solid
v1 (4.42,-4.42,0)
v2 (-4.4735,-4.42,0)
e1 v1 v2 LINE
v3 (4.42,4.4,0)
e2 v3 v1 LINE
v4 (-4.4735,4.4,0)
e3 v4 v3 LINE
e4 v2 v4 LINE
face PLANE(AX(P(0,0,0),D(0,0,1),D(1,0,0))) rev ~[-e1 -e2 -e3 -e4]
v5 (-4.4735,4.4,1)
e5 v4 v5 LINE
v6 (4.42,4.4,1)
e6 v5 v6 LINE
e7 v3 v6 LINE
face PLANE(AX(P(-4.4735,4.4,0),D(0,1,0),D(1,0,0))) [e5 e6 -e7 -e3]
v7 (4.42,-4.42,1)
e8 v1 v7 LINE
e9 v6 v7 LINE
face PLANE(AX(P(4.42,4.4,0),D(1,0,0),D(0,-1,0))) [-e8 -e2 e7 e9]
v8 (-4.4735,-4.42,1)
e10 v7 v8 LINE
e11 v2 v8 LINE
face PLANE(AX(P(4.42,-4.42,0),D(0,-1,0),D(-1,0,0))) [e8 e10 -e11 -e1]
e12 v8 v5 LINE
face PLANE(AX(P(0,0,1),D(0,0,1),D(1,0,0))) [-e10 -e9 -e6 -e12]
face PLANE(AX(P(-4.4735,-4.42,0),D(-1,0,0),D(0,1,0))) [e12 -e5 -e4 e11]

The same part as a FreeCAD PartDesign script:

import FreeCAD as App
import Part
import Sketcher
from FreeCAD import Vector
Q = App.Units.Quantity


def add_polygon(sketch, points):
    """Adds a closed chain of lines whose ends are joined by coincident constraints."""
    first, n = sketch.GeometryCount, len(points)
    for a, b in zip(points, points[1:] + points[:1]):
        sketch.addGeometry(Part.LineSegment(App.Vector(*a, 0), App.Vector(*b, 0)), False)
    for i in range(n):
        sketch.addConstraint(Sketcher.Constraint("Coincident", first + i, 2, first + (i + 1) % n, 1))

doc = App.newDocument("Part")
body = doc.addObject("PartDesign::Body", "Body")

sketch1 = body.newObject("Sketcher::SketchObject", "Sketch")
sketch1.AttachmentSupport = (doc.getObject("XY_Plane"), [""])
sketch1.MapMode = "FlatFace"
add_polygon(sketch1, [(4, 4), (-4, 4), (-4, -4), (4, -4)])
sketch1.addConstraint([
    Sketcher.Constraint("Horizontal", 0),
    Sketcher.Constraint("Vertical", 1),
    Sketcher.Constraint("Horizontal", 2),
    Sketcher.Constraint("Vertical", 3),
    Sketcher.Constraint("DistanceY", 1, 2, 1, 1, Q("8.82 mm")),
    Sketcher.Constraint("DistanceY", -1, 1, 0, 2, Q("4.4 mm")),
    Sketcher.Constraint("DistanceX", -1, 1, 2, 2, Q("4.42 mm")),
    Sketcher.Constraint("DistanceX", 0, 2, 0, 1, Q("8.8935 mm")),
])
pad1 = body.newObject("PartDesign::Pad", "Pad")
pad1.Profile = sketch1
pad1.Length = 1

doc.recompute()
